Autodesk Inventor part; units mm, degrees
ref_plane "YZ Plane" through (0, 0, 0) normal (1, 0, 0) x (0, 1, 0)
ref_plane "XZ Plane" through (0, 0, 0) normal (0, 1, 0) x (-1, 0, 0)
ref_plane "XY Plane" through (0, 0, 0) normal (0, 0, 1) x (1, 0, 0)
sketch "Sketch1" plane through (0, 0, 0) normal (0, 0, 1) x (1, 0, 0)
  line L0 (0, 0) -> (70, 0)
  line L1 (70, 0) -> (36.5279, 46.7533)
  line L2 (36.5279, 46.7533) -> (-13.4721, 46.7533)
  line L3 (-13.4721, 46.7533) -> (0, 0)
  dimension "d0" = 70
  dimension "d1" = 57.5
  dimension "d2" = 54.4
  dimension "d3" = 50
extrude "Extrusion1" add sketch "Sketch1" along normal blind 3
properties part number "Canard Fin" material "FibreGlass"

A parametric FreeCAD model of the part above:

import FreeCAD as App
import Part
import Sketcher
Q = App.Units.Quantity


def add_polygon(sketch, points):
    """Adds a closed chain of lines whose ends are joined by coincident constraints."""
    first, n = sketch.GeometryCount, len(points)
    for a, b in zip(points, points[1:] + points[:1]):
        sketch.addGeometry(Part.LineSegment(App.Vector(*a, 0), App.Vector(*b, 0)), False)
    for i in range(n):
        sketch.addConstraint(Sketcher.Constraint("Coincident", first + i, 2, first + (i + 1) % n, 1))

doc = App.newDocument("Part")
body = doc.addObject("PartDesign::Body", "Body")

# Sketch on XY plane
sketch1 = body.newObject("Sketcher::SketchObject", "Sketch")
sketch1.AttachmentSupport = (doc.getObject("XY_Plane"), [""])
sketch1.MapMode = "FlatFace"
add_polygon(sketch1, [(-13, 47), (0, 0), (70, 0), (37, 47)])  # lines 0-3
sketch1.addConstraint([
    Sketcher.Constraint("Horizontal", 1),
    Sketcher.Constraint("Horizontal", 3),
    Sketcher.Constraint("Coincident", 0, 2, -1, 1),
    Sketcher.Constraint("DistanceX", 1, 1, 1, 2, 70.0),
    Sketcher.Constraint("DistanceX", 3, 2, 3, 1, 50.0),
    Sketcher.Constraint("Distance", 2, 57.5),
    Sketcher.Constraint("Angle", 2, Q("125.6 deg")),
])
pad1 = body.newObject("PartDesign::Pad", "Pad")
pad1.Profile = sketch1
pad1.Length = 3

doc.recompute()
